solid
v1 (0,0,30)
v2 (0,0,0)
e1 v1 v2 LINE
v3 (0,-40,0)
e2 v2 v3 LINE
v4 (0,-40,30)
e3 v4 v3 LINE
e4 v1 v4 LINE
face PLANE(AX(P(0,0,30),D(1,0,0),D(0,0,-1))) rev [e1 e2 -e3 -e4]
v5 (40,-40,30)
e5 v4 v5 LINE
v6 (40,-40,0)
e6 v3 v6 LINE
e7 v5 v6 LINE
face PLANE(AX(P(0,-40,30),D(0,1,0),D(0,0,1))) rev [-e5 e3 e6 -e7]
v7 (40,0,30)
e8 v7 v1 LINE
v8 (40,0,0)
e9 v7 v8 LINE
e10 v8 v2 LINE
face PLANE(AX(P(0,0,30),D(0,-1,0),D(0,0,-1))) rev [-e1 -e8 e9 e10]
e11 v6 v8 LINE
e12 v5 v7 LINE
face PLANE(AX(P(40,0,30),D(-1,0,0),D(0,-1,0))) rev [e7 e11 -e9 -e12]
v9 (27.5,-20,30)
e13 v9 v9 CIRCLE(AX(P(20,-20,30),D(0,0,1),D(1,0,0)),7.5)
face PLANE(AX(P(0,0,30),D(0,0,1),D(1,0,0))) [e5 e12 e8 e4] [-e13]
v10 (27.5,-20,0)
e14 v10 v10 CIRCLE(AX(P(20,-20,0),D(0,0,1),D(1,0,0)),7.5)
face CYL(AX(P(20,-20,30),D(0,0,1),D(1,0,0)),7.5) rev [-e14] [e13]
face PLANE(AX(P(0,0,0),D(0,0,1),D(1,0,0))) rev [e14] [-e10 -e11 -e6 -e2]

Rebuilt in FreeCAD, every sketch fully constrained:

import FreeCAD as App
import Part
import Sketcher

V = App.Vector
Q = App.Units.Quantity


def add_polygon(sketch, points):
    """Adds a closed chain of lines whose ends are joined by coincident constraints."""
    first, n = sketch.GeometryCount, len(points)
    for a, b in zip(points, points[1:] + points[:1]):
        sketch.addGeometry(Part.LineSegment(App.Vector(*a, 0), App.Vector(*b, 0)), False)
    for i in range(n):
        sketch.addConstraint(Sketcher.Constraint("Coincident", first + i, 2, first + (i + 1) % n, 1))

doc = App.newDocument("Part")
body = doc.addObject("PartDesign::Body", "Body")

# Sketch on XY plane
sketch1 = body.newObject("Sketcher::SketchObject", "Sketch")
sketch1.AttachmentSupport = (doc.getObject("XY_Plane"), [""])
sketch1.MapMode = "FlatFace"
add_polygon(sketch1, [(0, 0), (0, -40), (40, -40), (40, 0)])  # lines 0-3
sketch1.addConstraint([
    Sketcher.Constraint("Vertical", 0),
    Sketcher.Constraint("Horizontal", 1),
    Sketcher.Constraint("Vertical", 2),
    Sketcher.Constraint("Horizontal", 3),
    Sketcher.Constraint("Coincident", 3, 2, -1, 1),
    Sketcher.Constraint("Equal", 3, 0),
    Sketcher.Constraint("DistanceX", 1, 1, 1, 2, Q("40 mm")),
])
pad1 = body.newObject("PartDesign::Pad", "Pad")
pad1.Profile = sketch1
pad1.Length = 30

# Sketch on XY plane
sketch2 = body.newObject("Sketcher::SketchObject", "Sketch001")
sketch2.AttachmentSupport = (doc.getObject("XY_Plane"), [""])
sketch2.MapMode = "FlatFace"
sketch2.AttachmentOffset = App.Placement(V(0, 0, 30), App.Rotation())
sketch2.addGeometry(Part.Circle(V(20, -20, 0), V(0, 0, 1), 8), False)
sketch2.addConstraint([
    Sketcher.Constraint("Diameter", 0, Q("15 mm")),
    Sketcher.Constraint("DistanceX", -1, 1, 0, 3, Q("20 mm")),
    Sketcher.Constraint("DistanceY", 0, 3, -1, 1, Q("20 mm")),
])
doc.recompute()
hole = body.newObject("PartDesign::Hole", "Hole")
hole.Profile = sketch2
hole.ThreadType = "None"
hole.Diameter = 15
hole.DepthType = "ThroughAll"

doc.recompute()
